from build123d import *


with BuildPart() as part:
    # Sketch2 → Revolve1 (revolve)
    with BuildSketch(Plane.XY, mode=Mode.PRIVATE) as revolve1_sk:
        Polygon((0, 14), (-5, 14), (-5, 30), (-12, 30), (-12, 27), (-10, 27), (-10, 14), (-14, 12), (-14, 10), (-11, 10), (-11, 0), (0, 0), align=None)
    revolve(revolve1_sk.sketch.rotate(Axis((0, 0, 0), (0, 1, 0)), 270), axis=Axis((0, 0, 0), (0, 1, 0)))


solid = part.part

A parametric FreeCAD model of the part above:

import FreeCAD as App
import Part
import Sketcher
from FreeCAD import Vector
Q = App.Units.Quantity


def add_polygon(sketch, points):
    """Adds a closed chain of lines whose ends are joined by coincident constraints."""
    first, n = sketch.GeometryCount, len(points)
    for a, b in zip(points, points[1:] + points[:1]):
        sketch.addGeometry(Part.LineSegment(App.Vector(*a, 0), App.Vector(*b, 0)), False)
    for i in range(n):
        sketch.addConstraint(Sketcher.Constraint("Coincident", first + i, 2, first + (i + 1) % n, 1))

doc = App.newDocument("Part")
body = doc.addObject("PartDesign::Body", "Body")

# Sketch on XY plane
sketch1 = body.newObject("Sketcher::SketchObject", "Sketch")
sketch1.AttachmentSupport = (doc.getObject("XY_Plane"), [""])
sketch1.MapMode = "FlatFace"
add_polygon(sketch1, [(0, 14), (-5, 14), (-5, 30), (-12, 30), (-12, 27), (-10, 27), (-10, 14), (-14, 12), (-14, 10), (-11, 10), (-11, 0), (0, 0)])  # lines 0-11
sketch1.addConstraint(Sketcher.Constraint("Horizontal", 0))
sketch1.addConstraint(Sketcher.Constraint("Vertical", 1))
sketch1.addConstraint(Sketcher.Constraint("Horizontal", 2))
sketch1.addConstraint(Sketcher.Constraint("Vertical", 3))
sketch1.addConstraint(Sketcher.Constraint("Horizontal", 4))
sketch1.addConstraint(Sketcher.Constraint("Vertical", 5))
sketch1.addConstraint(Sketcher.Constraint("Vertical", 7))
sketch1.addConstraint(Sketcher.Constraint("Horizontal", 8))
sketch1.addConstraint(Sketcher.Constraint("Vertical", 9))
sketch1.addConstraint(Sketcher.Constraint("Horizontal", 10))
sketch1.addConstraint(Sketcher.Constraint("Vertical", 11))
sketch1.addConstraint(Sketcher.Constraint("Coincident", 10, 2, -1, 1))
sketch1.addConstraint(Sketcher.Constraint("Horizontal", 0, 2, 5, 2))
sketch1.addConstraint(Sketcher.Constraint("Equal", 8, 3))
sketch1.addConstraint(Sketcher.Constraint("Equal", 4, 7))
sketch1.addConstraint(Sketcher.Constraint("DistanceX", 0, 2, 0, 1, Q("5 mm")))
sketch1.addConstraint(Sketcher.Constraint("DistanceX", 2, 2, 2, 1, Q("7 mm")))
sketch1.addConstraint(Sketcher.Constraint("DistanceX", 4, 1, 4, 2, Q("2 mm")))
sketch1.addConstraint(Sketcher.Constraint("DistanceX", 8, 1, 8, 2, Q("3 mm")))
sketch1.addConstraint(Sketcher.Constraint("DistanceX", 10, 1, 10, 2, Q("11 mm")))
sketch1.addConstraint(Sketcher.Constraint("DistanceY", 1, 1, 1, 2, Q("16 mm")))
sketch1.addConstraint(Sketcher.Constraint("DistanceY", 9, 2, 9, 1, Q("10 mm")))
sketch1.addConstraint(Sketcher.Constraint("DistanceY", 11, 1, 11, 2, Q("14 mm")))
revolution = body.newObject("PartDesign::Revolution", "Revolution")
revolution.Profile = sketch1
revolution.ReferenceAxis = (sketch1, ["V_Axis"])
revolution.Angle = 360

doc.recompute()
